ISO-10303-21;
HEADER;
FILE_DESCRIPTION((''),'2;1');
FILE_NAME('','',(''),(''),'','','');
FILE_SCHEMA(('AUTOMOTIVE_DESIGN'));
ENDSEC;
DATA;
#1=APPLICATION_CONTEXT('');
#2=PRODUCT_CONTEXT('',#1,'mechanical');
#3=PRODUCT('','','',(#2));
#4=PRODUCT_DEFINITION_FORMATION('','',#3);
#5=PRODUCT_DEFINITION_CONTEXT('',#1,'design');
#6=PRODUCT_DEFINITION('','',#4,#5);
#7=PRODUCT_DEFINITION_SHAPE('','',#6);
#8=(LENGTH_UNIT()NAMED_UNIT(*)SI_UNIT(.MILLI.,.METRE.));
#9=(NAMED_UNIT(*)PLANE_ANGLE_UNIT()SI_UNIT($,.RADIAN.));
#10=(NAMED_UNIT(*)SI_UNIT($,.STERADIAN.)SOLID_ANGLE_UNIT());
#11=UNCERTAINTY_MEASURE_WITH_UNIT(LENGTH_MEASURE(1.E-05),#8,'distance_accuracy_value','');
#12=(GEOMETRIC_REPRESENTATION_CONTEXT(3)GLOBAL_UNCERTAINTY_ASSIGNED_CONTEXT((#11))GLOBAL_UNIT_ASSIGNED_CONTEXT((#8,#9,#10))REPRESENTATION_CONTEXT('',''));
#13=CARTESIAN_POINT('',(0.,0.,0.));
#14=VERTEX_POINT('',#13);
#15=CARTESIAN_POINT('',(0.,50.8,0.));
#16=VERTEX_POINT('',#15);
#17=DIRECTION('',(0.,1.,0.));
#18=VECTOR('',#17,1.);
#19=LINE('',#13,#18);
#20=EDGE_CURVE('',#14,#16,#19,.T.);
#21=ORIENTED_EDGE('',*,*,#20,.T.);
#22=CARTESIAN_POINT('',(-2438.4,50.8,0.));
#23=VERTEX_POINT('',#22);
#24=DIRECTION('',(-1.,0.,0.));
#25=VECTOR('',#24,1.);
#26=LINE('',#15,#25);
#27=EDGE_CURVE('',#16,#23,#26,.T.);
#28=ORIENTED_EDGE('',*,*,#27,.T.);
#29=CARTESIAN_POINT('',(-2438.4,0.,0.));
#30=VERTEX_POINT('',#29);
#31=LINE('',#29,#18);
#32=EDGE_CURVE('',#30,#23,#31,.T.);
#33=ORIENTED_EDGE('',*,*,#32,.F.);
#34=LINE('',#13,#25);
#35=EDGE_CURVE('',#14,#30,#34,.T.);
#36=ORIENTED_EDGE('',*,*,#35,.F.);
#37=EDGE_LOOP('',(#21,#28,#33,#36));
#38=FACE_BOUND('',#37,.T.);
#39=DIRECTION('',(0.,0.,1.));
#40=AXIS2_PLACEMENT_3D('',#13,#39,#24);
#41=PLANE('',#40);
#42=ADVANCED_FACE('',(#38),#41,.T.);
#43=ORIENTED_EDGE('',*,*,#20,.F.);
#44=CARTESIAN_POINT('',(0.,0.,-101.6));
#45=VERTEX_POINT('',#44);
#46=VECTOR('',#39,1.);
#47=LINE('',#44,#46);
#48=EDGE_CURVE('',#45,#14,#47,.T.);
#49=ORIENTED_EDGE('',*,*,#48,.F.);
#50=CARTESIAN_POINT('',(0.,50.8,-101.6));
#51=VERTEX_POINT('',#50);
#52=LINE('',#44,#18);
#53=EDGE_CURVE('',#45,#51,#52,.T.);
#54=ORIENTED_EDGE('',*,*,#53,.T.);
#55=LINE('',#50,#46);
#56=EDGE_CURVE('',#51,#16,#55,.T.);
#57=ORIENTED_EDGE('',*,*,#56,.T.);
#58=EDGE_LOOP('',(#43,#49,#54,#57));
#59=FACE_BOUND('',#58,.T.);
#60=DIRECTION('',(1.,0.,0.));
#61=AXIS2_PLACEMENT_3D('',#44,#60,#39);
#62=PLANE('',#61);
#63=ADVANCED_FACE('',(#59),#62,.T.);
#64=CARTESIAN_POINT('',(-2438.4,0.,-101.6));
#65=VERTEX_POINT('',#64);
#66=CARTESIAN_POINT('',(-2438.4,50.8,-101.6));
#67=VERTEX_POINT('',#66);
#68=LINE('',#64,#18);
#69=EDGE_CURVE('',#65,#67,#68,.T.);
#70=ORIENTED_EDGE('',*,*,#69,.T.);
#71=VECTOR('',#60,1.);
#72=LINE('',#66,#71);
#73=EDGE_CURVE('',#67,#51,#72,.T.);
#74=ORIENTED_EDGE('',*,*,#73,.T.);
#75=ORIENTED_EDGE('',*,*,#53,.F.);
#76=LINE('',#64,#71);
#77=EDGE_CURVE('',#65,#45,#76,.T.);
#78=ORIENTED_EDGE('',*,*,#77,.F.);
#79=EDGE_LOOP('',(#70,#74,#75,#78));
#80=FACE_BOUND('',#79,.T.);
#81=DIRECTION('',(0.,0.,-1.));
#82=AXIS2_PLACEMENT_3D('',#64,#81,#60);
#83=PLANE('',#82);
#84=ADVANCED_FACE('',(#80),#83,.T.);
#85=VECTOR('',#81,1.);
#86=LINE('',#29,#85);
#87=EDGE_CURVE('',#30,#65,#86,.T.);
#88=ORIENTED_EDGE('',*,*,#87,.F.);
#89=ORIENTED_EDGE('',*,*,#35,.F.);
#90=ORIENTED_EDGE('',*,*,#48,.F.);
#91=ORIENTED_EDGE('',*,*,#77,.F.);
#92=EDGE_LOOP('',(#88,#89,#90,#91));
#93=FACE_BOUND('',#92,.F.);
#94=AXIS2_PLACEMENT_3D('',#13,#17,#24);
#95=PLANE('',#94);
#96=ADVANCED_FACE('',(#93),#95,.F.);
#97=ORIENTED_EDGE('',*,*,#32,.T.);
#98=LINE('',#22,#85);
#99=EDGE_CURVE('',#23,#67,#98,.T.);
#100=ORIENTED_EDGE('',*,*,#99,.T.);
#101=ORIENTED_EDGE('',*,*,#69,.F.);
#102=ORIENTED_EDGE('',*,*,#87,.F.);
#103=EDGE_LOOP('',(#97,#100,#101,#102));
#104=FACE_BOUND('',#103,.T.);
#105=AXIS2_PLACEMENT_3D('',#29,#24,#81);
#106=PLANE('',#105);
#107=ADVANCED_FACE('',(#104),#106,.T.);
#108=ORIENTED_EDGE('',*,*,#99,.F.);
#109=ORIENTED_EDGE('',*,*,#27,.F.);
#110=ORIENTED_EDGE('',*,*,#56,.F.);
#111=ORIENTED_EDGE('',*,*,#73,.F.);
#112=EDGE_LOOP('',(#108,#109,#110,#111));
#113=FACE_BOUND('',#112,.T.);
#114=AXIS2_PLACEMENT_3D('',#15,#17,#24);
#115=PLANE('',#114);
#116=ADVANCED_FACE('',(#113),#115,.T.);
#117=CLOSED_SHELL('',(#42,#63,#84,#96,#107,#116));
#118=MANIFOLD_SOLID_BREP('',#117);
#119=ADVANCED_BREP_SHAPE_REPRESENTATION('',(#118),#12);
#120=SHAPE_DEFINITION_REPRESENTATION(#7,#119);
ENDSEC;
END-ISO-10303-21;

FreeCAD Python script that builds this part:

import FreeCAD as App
import Part
import Sketcher
Q = App.Units.Quantity


def add_polygon(sketch, points):
    """Adds a closed chain of lines whose ends are joined by coincident constraints."""
    first, n = sketch.GeometryCount, len(points)
    for a, b in zip(points, points[1:] + points[:1]):
        sketch.addGeometry(Part.LineSegment(App.Vector(*a, 0), App.Vector(*b, 0)), False)
    for i in range(n):
        sketch.addConstraint(Sketcher.Constraint("Coincident", first + i, 2, first + (i + 1) % n, 1))

doc = App.newDocument("Part")
body = doc.addObject("PartDesign::Body", "Body")

# Sketch on XZ plane
sketch1 = doc.addObject("Sketcher::SketchObject", "Sketch")
body.addObject(sketch1)
sketch1.AttachmentSupport = (doc.XZ_Plane, [""])
sketch1.MapMode = "FlatFace"
add_polygon(sketch1, [(-2438, 0), (0, 0), (0, -102), (-2438, -102)])  # lines 0-3
sketch1.addConstraint(Sketcher.Constraint("Horizontal", 0))
sketch1.addConstraint(Sketcher.Constraint("Vertical", 1))
sketch1.addConstraint(Sketcher.Constraint("Horizontal", 2))
sketch1.addConstraint(Sketcher.Constraint("Vertical", 3))
sketch1.addConstraint(Sketcher.Constraint("Coincident", 0, 2, -1, 1))
sketch1.addConstraint(Sketcher.Constraint("DistanceX", 0, 1, 0, 2, Q("96 in")))
sketch1.addConstraint(Sketcher.Constraint("DistanceY", 1, 2, 1, 1, Q("4 in")))
pad1 = doc.addObject("PartDesign::Pad", "Pad")
body.addObject(pad1)
pad1.Profile = sketch1
pad1.Length = Q("2 in")
pad1.Reversed = True

doc.recompute()
